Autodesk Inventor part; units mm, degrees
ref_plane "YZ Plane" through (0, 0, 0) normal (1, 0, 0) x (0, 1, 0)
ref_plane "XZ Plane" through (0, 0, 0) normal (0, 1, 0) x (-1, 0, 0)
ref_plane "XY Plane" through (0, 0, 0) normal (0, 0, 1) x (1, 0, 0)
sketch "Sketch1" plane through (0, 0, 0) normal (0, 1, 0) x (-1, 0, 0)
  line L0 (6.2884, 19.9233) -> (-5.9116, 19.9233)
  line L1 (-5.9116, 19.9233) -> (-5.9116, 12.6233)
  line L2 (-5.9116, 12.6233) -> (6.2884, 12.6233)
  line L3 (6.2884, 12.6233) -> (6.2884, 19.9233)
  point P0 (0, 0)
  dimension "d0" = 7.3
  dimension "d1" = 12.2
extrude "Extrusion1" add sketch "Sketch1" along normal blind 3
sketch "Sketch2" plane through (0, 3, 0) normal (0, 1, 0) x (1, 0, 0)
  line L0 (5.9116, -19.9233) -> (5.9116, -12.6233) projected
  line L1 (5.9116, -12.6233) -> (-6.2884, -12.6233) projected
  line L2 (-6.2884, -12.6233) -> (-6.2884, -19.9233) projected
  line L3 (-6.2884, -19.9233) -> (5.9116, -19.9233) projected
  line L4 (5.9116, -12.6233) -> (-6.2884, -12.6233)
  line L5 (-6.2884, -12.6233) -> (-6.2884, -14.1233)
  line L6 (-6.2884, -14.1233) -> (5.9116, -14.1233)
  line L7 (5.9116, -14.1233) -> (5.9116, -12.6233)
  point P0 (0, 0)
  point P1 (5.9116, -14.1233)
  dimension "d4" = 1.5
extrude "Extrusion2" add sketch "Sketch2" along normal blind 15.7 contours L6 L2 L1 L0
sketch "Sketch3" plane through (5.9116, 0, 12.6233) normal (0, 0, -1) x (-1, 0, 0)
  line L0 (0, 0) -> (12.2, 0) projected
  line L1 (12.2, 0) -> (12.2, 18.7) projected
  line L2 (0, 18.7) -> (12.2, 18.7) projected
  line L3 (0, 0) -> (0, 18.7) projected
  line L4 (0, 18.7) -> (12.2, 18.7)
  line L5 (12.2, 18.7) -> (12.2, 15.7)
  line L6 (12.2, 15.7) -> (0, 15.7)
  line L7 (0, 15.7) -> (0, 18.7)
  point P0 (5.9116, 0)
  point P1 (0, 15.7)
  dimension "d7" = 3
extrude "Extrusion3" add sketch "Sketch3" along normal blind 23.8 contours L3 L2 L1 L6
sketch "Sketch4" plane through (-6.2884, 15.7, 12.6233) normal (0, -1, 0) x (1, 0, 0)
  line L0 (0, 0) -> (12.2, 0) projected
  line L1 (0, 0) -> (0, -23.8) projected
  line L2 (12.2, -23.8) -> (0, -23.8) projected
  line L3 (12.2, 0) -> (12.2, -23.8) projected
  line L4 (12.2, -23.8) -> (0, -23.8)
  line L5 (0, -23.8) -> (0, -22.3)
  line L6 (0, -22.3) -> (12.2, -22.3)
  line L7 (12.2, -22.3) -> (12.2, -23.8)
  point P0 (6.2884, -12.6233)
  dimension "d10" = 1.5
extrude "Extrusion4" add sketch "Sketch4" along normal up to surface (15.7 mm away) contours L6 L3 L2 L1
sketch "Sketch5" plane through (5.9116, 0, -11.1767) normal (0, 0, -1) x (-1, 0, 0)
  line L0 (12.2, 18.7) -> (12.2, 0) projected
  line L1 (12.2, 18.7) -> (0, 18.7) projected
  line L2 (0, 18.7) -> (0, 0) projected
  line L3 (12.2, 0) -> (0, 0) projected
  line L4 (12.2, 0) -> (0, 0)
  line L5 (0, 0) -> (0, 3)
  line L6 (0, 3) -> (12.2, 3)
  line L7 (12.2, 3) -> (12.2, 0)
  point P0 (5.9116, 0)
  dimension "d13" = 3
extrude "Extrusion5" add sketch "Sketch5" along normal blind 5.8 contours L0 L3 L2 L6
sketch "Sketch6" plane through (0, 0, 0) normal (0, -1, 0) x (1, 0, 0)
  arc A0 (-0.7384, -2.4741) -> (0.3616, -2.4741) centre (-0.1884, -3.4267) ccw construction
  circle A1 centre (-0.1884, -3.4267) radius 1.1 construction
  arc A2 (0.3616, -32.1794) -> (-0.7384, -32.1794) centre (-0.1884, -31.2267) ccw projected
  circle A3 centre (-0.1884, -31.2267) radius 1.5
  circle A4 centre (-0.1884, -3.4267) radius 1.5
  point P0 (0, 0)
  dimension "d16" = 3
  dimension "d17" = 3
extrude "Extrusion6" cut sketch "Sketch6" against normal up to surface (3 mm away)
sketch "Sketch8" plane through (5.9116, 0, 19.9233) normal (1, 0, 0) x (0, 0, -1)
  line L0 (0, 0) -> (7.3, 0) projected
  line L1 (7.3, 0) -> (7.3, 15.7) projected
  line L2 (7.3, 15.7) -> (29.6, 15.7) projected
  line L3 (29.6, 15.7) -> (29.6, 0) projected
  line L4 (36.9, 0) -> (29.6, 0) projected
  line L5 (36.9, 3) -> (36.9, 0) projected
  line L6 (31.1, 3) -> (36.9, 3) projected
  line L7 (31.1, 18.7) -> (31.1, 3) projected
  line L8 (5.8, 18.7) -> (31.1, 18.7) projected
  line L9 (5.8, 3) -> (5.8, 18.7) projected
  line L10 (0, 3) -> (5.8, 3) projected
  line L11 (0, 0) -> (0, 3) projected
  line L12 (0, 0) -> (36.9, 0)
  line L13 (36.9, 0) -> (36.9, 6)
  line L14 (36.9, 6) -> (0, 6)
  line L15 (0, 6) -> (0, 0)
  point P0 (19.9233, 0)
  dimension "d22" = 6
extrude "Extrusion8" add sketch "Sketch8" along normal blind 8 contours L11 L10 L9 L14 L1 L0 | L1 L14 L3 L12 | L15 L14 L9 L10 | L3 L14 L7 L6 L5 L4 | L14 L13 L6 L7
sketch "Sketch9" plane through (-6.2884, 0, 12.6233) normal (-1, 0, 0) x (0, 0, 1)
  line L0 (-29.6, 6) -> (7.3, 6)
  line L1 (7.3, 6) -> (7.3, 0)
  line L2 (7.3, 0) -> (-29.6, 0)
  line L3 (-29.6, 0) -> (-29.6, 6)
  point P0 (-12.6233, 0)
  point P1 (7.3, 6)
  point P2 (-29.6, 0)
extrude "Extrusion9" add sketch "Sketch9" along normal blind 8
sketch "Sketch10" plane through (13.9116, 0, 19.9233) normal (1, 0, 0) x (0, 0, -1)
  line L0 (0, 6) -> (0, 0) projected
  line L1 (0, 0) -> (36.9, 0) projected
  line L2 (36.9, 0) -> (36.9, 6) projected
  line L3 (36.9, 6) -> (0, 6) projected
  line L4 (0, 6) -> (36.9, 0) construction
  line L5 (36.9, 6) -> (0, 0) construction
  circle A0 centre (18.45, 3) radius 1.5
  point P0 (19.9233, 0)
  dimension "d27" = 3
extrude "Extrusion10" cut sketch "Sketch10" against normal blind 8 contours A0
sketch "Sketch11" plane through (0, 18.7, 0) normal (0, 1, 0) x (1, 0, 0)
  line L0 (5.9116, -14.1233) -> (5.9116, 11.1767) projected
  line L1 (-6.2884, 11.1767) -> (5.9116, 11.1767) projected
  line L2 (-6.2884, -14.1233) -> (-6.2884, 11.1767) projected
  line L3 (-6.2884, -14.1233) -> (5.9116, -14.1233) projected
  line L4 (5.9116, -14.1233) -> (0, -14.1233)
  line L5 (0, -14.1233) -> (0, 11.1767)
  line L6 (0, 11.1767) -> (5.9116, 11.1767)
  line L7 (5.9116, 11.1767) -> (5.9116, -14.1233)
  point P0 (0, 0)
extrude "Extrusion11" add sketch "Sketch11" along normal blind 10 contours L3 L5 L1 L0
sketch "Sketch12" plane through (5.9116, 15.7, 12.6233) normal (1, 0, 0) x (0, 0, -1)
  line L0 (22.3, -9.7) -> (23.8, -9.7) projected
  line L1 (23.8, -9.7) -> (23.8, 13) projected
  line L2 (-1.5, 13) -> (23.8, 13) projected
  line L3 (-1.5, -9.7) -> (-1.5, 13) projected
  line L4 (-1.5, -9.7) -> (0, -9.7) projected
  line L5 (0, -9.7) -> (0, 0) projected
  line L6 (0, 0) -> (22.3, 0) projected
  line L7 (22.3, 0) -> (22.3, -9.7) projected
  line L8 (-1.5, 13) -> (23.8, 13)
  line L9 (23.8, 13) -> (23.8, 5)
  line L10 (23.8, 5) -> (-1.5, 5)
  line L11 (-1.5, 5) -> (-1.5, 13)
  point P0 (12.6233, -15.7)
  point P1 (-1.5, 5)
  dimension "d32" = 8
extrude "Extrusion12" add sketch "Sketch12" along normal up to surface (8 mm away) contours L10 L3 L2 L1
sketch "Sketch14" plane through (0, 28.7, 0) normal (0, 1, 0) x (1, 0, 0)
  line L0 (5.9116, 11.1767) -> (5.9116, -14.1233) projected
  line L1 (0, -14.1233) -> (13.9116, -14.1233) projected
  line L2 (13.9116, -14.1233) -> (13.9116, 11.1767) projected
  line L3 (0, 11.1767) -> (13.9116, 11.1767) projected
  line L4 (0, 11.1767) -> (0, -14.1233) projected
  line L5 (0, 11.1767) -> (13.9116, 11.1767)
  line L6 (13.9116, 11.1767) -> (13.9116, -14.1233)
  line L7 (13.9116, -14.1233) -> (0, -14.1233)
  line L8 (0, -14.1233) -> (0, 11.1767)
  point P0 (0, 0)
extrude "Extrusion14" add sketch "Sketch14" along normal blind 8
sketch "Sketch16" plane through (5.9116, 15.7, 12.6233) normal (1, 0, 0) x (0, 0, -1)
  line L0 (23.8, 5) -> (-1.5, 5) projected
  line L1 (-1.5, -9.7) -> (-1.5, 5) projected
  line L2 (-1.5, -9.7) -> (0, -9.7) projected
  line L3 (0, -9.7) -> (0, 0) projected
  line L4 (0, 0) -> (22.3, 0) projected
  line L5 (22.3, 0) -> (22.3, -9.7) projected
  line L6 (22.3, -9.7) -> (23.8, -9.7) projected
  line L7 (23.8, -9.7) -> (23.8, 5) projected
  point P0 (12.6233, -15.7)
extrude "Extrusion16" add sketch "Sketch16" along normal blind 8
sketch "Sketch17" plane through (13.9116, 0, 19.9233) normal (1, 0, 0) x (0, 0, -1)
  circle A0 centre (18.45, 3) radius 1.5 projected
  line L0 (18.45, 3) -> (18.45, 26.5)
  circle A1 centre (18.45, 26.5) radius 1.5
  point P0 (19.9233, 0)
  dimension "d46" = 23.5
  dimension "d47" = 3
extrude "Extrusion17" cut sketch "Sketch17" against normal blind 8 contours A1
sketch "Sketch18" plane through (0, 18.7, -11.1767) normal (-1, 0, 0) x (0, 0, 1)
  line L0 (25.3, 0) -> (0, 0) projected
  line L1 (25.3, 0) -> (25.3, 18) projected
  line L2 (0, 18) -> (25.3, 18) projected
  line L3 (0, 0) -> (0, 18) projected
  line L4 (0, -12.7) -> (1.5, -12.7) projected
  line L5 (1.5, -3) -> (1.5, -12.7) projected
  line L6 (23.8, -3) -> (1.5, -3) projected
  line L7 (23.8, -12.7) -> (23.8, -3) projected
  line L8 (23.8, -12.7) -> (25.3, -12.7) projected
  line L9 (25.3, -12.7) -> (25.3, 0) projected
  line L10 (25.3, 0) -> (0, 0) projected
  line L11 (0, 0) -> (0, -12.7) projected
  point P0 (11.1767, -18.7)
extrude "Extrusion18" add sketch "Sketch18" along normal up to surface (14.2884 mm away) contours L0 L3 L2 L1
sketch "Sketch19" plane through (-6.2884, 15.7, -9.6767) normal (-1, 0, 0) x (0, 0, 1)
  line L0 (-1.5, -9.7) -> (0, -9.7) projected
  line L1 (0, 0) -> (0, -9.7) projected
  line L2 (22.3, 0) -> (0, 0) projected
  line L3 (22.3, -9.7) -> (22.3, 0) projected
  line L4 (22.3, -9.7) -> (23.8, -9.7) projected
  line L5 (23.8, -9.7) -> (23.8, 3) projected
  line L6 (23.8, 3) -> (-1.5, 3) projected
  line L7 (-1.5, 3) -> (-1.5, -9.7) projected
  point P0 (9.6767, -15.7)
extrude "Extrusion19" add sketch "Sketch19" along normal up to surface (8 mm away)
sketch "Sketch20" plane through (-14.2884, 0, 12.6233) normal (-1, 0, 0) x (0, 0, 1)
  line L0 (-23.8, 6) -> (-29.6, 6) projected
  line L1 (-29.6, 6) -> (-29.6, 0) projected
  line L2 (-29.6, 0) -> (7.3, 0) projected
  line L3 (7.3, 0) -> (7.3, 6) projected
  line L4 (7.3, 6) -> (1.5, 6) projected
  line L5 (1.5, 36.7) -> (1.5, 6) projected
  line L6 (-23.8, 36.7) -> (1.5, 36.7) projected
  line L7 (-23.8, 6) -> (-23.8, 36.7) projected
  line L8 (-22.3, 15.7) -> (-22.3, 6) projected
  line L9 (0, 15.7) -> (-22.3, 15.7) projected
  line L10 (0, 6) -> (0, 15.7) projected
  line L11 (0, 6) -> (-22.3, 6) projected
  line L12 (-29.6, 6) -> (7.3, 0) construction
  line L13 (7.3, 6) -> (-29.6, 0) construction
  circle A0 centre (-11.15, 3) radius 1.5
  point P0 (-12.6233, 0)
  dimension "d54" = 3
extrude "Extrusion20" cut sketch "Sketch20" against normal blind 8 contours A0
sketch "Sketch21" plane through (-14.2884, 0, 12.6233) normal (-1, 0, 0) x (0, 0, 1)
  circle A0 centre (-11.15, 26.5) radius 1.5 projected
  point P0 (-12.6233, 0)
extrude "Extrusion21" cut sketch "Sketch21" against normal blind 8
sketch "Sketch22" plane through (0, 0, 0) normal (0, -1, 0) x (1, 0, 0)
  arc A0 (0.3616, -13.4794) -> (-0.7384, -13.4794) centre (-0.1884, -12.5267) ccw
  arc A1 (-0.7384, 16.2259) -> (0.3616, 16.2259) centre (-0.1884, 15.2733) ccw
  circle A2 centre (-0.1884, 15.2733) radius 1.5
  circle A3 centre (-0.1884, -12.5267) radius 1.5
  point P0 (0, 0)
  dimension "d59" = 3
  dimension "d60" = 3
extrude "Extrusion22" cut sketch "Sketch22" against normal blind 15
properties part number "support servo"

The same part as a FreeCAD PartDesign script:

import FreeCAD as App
import Part
import Sketcher
Q = App.Units.Quantity

doc = App.newDocument("Part")
body = doc.addObject("PartDesign::Body", "Body")

# Sketch on XZ plane
sketch1 = doc.addObject("Sketcher::SketchObject", "Sketch")
body.addObject(sketch1)
sketch1.AttachmentSupport = (doc.XZ_Plane, [""])
sketch1.MapMode = "FlatFace"
sketch1.addGeometry(Part.LineSegment(App.Vector(-6, 13, 0), App.Vector(-6, 20, 0)), False)
sketch1.addGeometry(Part.LineSegment(App.Vector(-6, 20, 0), App.Vector(6, 20, 0)), False)
sketch1.addGeometry(Part.LineSegment(App.Vector(6, 20, 0), App.Vector(6, 13, 0)), False)
sketch1.addGeometry(Part.LineSegment(App.Vector(6, 13, 0), App.Vector(-6, 13, 0)), False)
sketch1.addConstraint(Sketcher.Constraint("Coincident", 0, 2, 1, 1))
sketch1.addConstraint(Sketcher.Constraint("Coincident", 1, 2, 2, 1))
sketch1.addConstraint(Sketcher.Constraint("Coincident", 2, 2, 3, 1))
sketch1.addConstraint(Sketcher.Constraint("Coincident", 3, 2, 0, 1))
sketch1.addConstraint(Sketcher.Constraint("Vertical", 0))
sketch1.addConstraint(Sketcher.Constraint("Horizontal", 1))
sketch1.addConstraint(Sketcher.Constraint("Vertical", 2))
sketch1.addConstraint(Sketcher.Constraint("Horizontal", 3))
sketch1.addConstraint(Sketcher.Constraint("DistanceX", 1, 1, 1, 2, Q("12.2 mm")))
sketch1.addConstraint(Sketcher.Constraint("DistanceY", 0, 1, 0, 2, Q("7.3 mm")))
sketch1.addConstraint(Sketcher.Constraint("DistanceX", 0, 2, -1, 1, Q("6.2884 mm")))
sketch1.addConstraint(Sketcher.Constraint("DistanceY", -1, 1, 0, 2, Q("19.9233 mm")))
pad1 = doc.addObject("PartDesign::Pad", "Pad")
body.addObject(pad1)
pad1.Profile = sketch1
pad1.Length = 3
pad1.Reversed = True

# Sketch on XZ plane
sketch2 = doc.addObject("Sketcher::SketchObject", "Sketch001")
body.addObject(sketch2)
sketch2.AttachmentSupport = (doc.XZ_Plane, [""])
sketch2.MapMode = "FlatFace"
sketch2.AttachmentOffset = App.Placement(App.Vector(0, 0, -3), App.Rotation())
sketch2.addGeometry(Part.LineSegment(App.Vector(-6.3, 14.1, 0), App.Vector(5.9, 14.1, 0)), False)
sketch2.addGeometry(Part.LineSegment(App.Vector(5.9, 14.1, 0), App.Vector(5.9, 12.6, 0)), False)
sketch2.addGeometry(Part.LineSegment(App.Vector(5.9, 12.6, 0), App.Vector(-6.3, 12.6, 0)), False)
sketch2.addGeometry(Part.LineSegment(App.Vector(-6.3, 12.6, 0), App.Vector(-6.3, 14.1, 0)), False)
sketch2.addConstraint(Sketcher.Constraint("Coincident", 0, 2, 1, 1))
sketch2.addConstraint(Sketcher.Constraint("Coincident", 1, 2, 2, 1))
sketch2.addConstraint(Sketcher.Constraint("Coincident", 2, 2, 3, 1))
sketch2.addConstraint(Sketcher.Constraint("Coincident", 3, 2, 0, 1))
sketch2.addConstraint(Sketcher.Constraint("Horizontal", 0))
sketch2.addConstraint(Sketcher.Constraint("Vertical", 1))
sketch2.addConstraint(Sketcher.Constraint("Horizontal", 2))
sketch2.addConstraint(Sketcher.Constraint("Vertical", 3))
sketch2.addConstraint(Sketcher.Constraint("DistanceY", 1, 2, 1, 1, Q("1.5 mm")))
sketch2.addConstraint(Sketcher.Constraint("DistanceX", 0, 1, 0, 2, Q("12.2 mm")))
sketch2.addConstraint(Sketcher.Constraint("DistanceX", -1, 1, 0, 2, Q("5.9116 mm")))
sketch2.addConstraint(Sketcher.Constraint("DistanceY", -1, 1, 0, 2, Q("14.1233 mm")))
pad2 = doc.addObject("PartDesign::Pad", "Pad001")
body.addObject(pad2)
pad2.Profile = sketch2
pad2.Length = 15.7
pad2.Reversed = True

# Sketch on XY plane
sketch3 = doc.addObject("Sketcher::SketchObject", "Sketch002")
body.addObject(sketch3)
sketch3.AttachmentSupport = (doc.XY_Plane, [""])
sketch3.MapMode = "FlatFace"
sketch3.AttachmentOffset = App.Placement(App.Vector(0, 0, 12.6233), App.Rotation())
sketch3.addGeometry(Part.LineSegment(App.Vector(5.9, 18.7, 0), App.Vector(5.9, 15.7, 0)), False)
sketch3.addGeometry(Part.LineSegment(App.Vector(5.9, 15.7, 0), App.Vector(-6.3, 15.7, 0)), False)
sketch3.addGeometry(Part.LineSegment(App.Vector(-6.3, 15.7, 0), App.Vector(-6.3, 18.7, 0)), False)
sketch3.addGeometry(Part.LineSegment(App.Vector(-6.3, 18.7, 0), App.Vector(5.9, 18.7, 0)), False)
sketch3.addConstraint(Sketcher.Constraint("Coincident", 0, 2, 1, 1))
sketch3.addConstraint(Sketcher.Constraint("Coincident", 1, 2, 2, 1))
sketch3.addConstraint(Sketcher.Constraint("Coincident", 2, 2, 3, 1))
sketch3.addConstraint(Sketcher.Constraint("Coincident", 3, 2, 0, 1))
sketch3.addConstraint(Sketcher.Constraint("Vertical", 0))
sketch3.addConstraint(Sketcher.Constraint("Horizontal", 1))
sketch3.addConstraint(Sketcher.Constraint("Vertical", 2))
sketch3.addConstraint(Sketcher.Constraint("Horizontal", 3))
sketch3.addConstraint(Sketcher.Constraint("DistanceY", 0, 2, 0, 1, Q("3 mm")))
sketch3.addConstraint(Sketcher.Constraint("DistanceX", 1, 2, 1, 1, Q("12.2 mm")))
sketch3.addConstraint(Sketcher.Constraint("DistanceY", -1, 1, 0, 2, Q("15.7 mm")))
sketch3.addConstraint(Sketcher.Constraint("DistanceX", -1, 1, 0, 2, Q("5.9116 mm")))
pad3 = doc.addObject("PartDesign::Pad", "Pad002")
body.addObject(pad3)
pad3.Profile = sketch3
pad3.Length = 23.8
pad3.Reversed = True

# Sketch on XZ plane
sketch4 = doc.addObject("Sketcher::SketchObject", "Sketch003")
body.addObject(sketch4)
sketch4.AttachmentSupport = (doc.XZ_Plane, [""])
sketch4.MapMode = "FlatFace"
sketch4.AttachmentOffset = App.Placement(App.Vector(0, 0, -15.7), App.Rotation())
sketch4.addGeometry(Part.LineSegment(App.Vector(5.9, -9.7, 0), App.Vector(-6.3, -9.7, 0)), False)
sketch4.addGeometry(Part.LineSegment(App.Vector(-6.3, -9.7, 0), App.Vector(-6.3, -11.2, 0)), False)
sketch4.addGeometry(Part.LineSegment(App.Vector(-6.3, -11.2, 0), App.Vector(5.9, -11.2, 0)), False)
sketch4.addGeometry(Part.LineSegment(App.Vector(5.9, -11.2, 0), App.Vector(5.9, -9.7, 0)), False)
sketch4.addConstraint(Sketcher.Constraint("Coincident", 0, 2, 1, 1))
sketch4.addConstraint(Sketcher.Constraint("Coincident", 1, 2, 2, 1))
sketch4.addConstraint(Sketcher.Constraint("Coincident", 2, 2, 3, 1))
sketch4.addConstraint(Sketcher.Constraint("Coincident", 3, 2, 0, 1))
sketch4.addConstraint(Sketcher.Constraint("Horizontal", 0))
sketch4.addConstraint(Sketcher.Constraint("Vertical", 1))
sketch4.addConstraint(Sketcher.Constraint("Horizontal", 2))
sketch4.addConstraint(Sketcher.Constraint("Vertical", 3))
sketch4.addConstraint(Sketcher.Constraint("DistanceY", 1, 2, 1, 1, Q("1.5 mm")))
sketch4.addConstraint(Sketcher.Constraint("DistanceX", 0, 2, 0, 1, Q("12.2 mm")))
sketch4.addConstraint(Sketcher.Constraint("DistanceX", 0, 2, -1, 1, Q("6.2884 mm")))
sketch4.addConstraint(Sketcher.Constraint("DistanceY", 0, 2, -1, 1, Q("9.6767 mm")))
pad4 = doc.addObject("PartDesign::Pad", "Pad003")
body.addObject(pad4)
pad4.Profile = sketch4
pad4.Length = 15.7

# Sketch on XY plane
sketch5 = doc.addObject("Sketcher::SketchObject", "Sketch004")
body.addObject(sketch5)
sketch5.AttachmentSupport = (doc.XY_Plane, [""])
sketch5.MapMode = "FlatFace"
sketch5.AttachmentOffset = App.Placement(App.Vector(0, 0, -11.1767), App.Rotation())
sketch5.addGeometry(Part.LineSegment(App.Vector(-6.3, 0, 0), App.Vector(-6.3, 3, 0)), False)
sketch5.addGeometry(Part.LineSegment(App.Vector(-6.3, 3, 0), App.Vector(5.9, 3, 0)), False)
sketch5.addGeometry(Part.LineSegment(App.Vector(5.9, 3, 0), App.Vector(5.9, 0, 0)), False)
sketch5.addGeometry(Part.LineSegment(App.Vector(5.9, 0, 0), App.Vector(-6.3, 0, 0)), False)
sketch5.addConstraint(Sketcher.Constraint("Coincident", 0, 2, 1, 1))
sketch5.addConstraint(Sketcher.Constraint("Coincident", 1, 2, 2, 1))
sketch5.addConstraint(Sketcher.Constraint("Coincident", 2, 2, 3, 1))
sketch5.addConstraint(Sketcher.Constraint("Coincident", 3, 2, 0, 1))
sketch5.addConstraint(Sketcher.Constraint("Vertical", 0))
sketch5.addConstraint(Sketcher.Constraint("Horizontal", 1))
sketch5.addConstraint(Sketcher.Constraint("Vertical", 2))
sketch5.addConstraint(Sketcher.Constraint("Horizontal", 3))
sketch5.addConstraint(Sketcher.Constraint("PointOnObject", 2, 2, -1))
sketch5.addConstraint(Sketcher.Constraint("DistanceY", 0, 1, 0, 2, Q("3 mm")))
sketch5.addConstraint(Sketcher.Constraint("DistanceX", 1, 1, 1, 2, Q("12.2 mm")))
sketch5.addConstraint(Sketcher.Constraint("DistanceX", 0, 2, -1, 1, Q("6.2884 mm")))
pad5 = doc.addObject("PartDesign::Pad", "Pad004")
body.addObject(pad5)
pad5.Profile = sketch5
pad5.Length = 5.8
pad5.Reversed = True

# Sketch on XZ plane
sketch6 = doc.addObject("Sketcher::SketchObject", "Sketch005")
body.addObject(sketch6)
sketch6.AttachmentSupport = (doc.XZ_Plane, [""])
sketch6.MapMode = "FlatFace"
sketch6.addGeometry(Part.Circle(App.Vector(-0.2, -31.2, 0), App.Vector(0, 0, 1), 1.5), False)
sketch6.addGeometry(Part.Circle(App.Vector(-0.2, -3.4, 0), App.Vector(0, 0, 1), 1.5), False)
sketch6.addConstraint(Sketcher.Constraint("Equal", 0, 1))
sketch6.addConstraint(Sketcher.Constraint("Vertical", 0, 3, 1, 3))
sketch6.addConstraint(Sketcher.Constraint("Diameter", 0, Q("3 mm")))
sketch6.addConstraint(Sketcher.Constraint("DistanceY", 0, 3, 1, 3, Q("27.8 mm")))
sketch6.addConstraint(Sketcher.Constraint("DistanceX", 0, 3, -1, 1, Q("0.1884 mm")))
sketch6.addConstraint(Sketcher.Constraint("DistanceY", 0, 3, -1, 1, Q("31.2267 mm")))
pocket1 = doc.addObject("PartDesign::Pocket", "Pocket")
body.addObject(pocket1)
pocket1.Profile = sketch6
pocket1.Length = 3

# Sketch on YZ plane
sketch7 = doc.addObject("Sketcher::SketchObject", "Sketch006")
body.addObject(sketch7)
sketch7.AttachmentSupport = (doc.YZ_Plane, [""])
sketch7.MapMode = "FlatFace"
sketch7.AttachmentOffset = App.Placement(App.Vector(0, 0, 5.9116), App.Rotation())
sketch7.addGeometry(Part.LineSegment(App.Vector(0, 20, 0), App.Vector(0, -17, 0)), False)
sketch7.addGeometry(Part.LineSegment(App.Vector(0, -17, 0), App.Vector(6, -17, 0)), False)
sketch7.addGeometry(Part.LineSegment(App.Vector(6, -17, 0), App.Vector(6, 20, 0)), False)
sketch7.addGeometry(Part.LineSegment(App.Vector(6, 20, 0), App.Vector(0, 20, 0)), False)
sketch7.addConstraint(Sketcher.Constraint("Coincident", 0, 2, 1, 1))
sketch7.addConstraint(Sketcher.Constraint("Coincident", 1, 2, 2, 1))
sketch7.addConstraint(Sketcher.Constraint("Coincident", 2, 2, 3, 1))
sketch7.addConstraint(Sketcher.Constraint("Coincident", 3, 2, 0, 1))
sketch7.addConstraint(Sketcher.Constraint("Vertical", 0))
sketch7.addConstraint(Sketcher.Constraint("Horizontal", 1))
sketch7.addConstraint(Sketcher.Constraint("Vertical", 2))
sketch7.addConstraint(Sketcher.Constraint("Horizontal", 3))
sketch7.addConstraint(Sketcher.Constraint("PointOnObject", 0, 2, -2))
sketch7.addConstraint(Sketcher.Constraint("DistanceX", 1, 1, 1, 2, Q("6 mm")))
sketch7.addConstraint(Sketcher.Constraint("DistanceY", 0, 2, 0, 1, Q("36.9 mm")))
sketch7.addConstraint(Sketcher.Constraint("DistanceY", 0, 2, -1, 1, Q("16.9767 mm")))
pad6 = doc.addObject("PartDesign::Pad", "Pad005")
body.addObject(pad6)
pad6.Profile = sketch7
pad6.Length = 8

# Sketch on YZ plane
sketch8 = doc.addObject("Sketcher::SketchObject", "Sketch007")
body.addObject(sketch8)
sketch8.AttachmentSupport = (doc.YZ_Plane, [""])
sketch8.MapMode = "FlatFace"
sketch8.AttachmentOffset = App.Placement(App.Vector(0, 0, -6.2884), App.Rotation())
sketch8.addGeometry(Part.LineSegment(App.Vector(6, 20, 0), App.Vector(6, -17, 0)), False)
sketch8.addGeometry(Part.LineSegment(App.Vector(6, -17, 0), App.Vector(0, -17, 0)), False)
sketch8.addGeometry(Part.LineSegment(App.Vector(0, -17, 0), App.Vector(0, 20, 0)), False)
sketch8.addGeometry(Part.LineSegment(App.Vector(0, 20, 0), App.Vector(6, 20, 0)), False)
sketch8.addConstraint(Sketcher.Constraint("Coincident", 0, 2, 1, 1))
sketch8.addConstraint(Sketcher.Constraint("Coincident", 1, 2, 2, 1))
sketch8.addConstraint(Sketcher.Constraint("Coincident", 2, 2, 3, 1))
sketch8.addConstraint(Sketcher.Constraint("Coincident", 3, 2, 0, 1))
sketch8.addConstraint(Sketcher.Constraint("Vertical", 0))
sketch8.addConstraint(Sketcher.Constraint("Horizontal", 1))
sketch8.addConstraint(Sketcher.Constraint("Vertical", 2))
sketch8.addConstraint(Sketcher.Constraint("Horizontal", 3))
sketch8.addConstraint(Sketcher.Constraint("PointOnObject", 1, 2, -2))
sketch8.addConstraint(Sketcher.Constraint("DistanceX", 1, 2, 1, 1, Q("6 mm")))
sketch8.addConstraint(Sketcher.Constraint("DistanceY", 0, 2, 0, 1, Q("36.9 mm")))
sketch8.addConstraint(Sketcher.Constraint("DistanceY", 0, 2, -1, 1, Q("16.9767 mm")))
pad7 = doc.addObject("PartDesign::Pad", "Pad006")
body.addObject(pad7)
pad7.Profile = sketch8
pad7.Length = 8
pad7.Reversed = True

# Sketch on YZ plane
sketch9 = doc.addObject("Sketcher::SketchObject", "Sketch008")
body.addObject(sketch9)
sketch9.AttachmentSupport = (doc.YZ_Plane, [""])
sketch9.MapMode = "FlatFace"
sketch9.AttachmentOffset = App.Placement(App.Vector(0, 0, 13.9116), App.Rotation())
sketch9.addGeometry(Part.Circle(App.Vector(3, 1.5, 0), App.Vector(0, 0, 1), 1.5), False)
sketch9.addConstraint(Sketcher.Constraint("Diameter", 0, Q("3 mm")))
sketch9.addConstraint(Sketcher.Constraint("DistanceX", -1, 1, 0, 3, Q("3 mm")))
sketch9.addConstraint(Sketcher.Constraint("DistanceY", -1, 1, 0, 3, Q("1.4733 mm")))
pocket2 = doc.addObject("PartDesign::Pocket", "Pocket001")
body.addObject(pocket2)
pocket2.Profile = sketch9
pocket2.Length = 8

# Sketch on XZ plane
sketch10 = doc.addObject("Sketcher::SketchObject", "Sketch009")
body.addObject(sketch10)
sketch10.AttachmentSupport = (doc.XZ_Plane, [""])
sketch10.MapMode = "FlatFace"
sketch10.AttachmentOffset = App.Placement(App.Vector(0, 0, -18.7), App.Rotation())
sketch10.addGeometry(Part.LineSegment(App.Vector(0, 14, 0), App.Vector(6, 14, 0)), False)
sketch10.addGeometry(Part.LineSegment(App.Vector(6, 14, 0), App.Vector(6, -11, 0)), False)
sketch10.addGeometry(Part.LineSegment(App.Vector(6, -11, 0), App.Vector(0, -11, 0)), False)
sketch10.addGeometry(Part.LineSegment(App.Vector(0, -11, 0), App.Vector(0, 14, 0)), False)
sketch10.addConstraint(Sketcher.Constraint("Coincident", 0, 2, 1, 1))
sketch10.addConstraint(Sketcher.Constraint("Coincident", 1, 2, 2, 1))
sketch10.addConstraint(Sketcher.Constraint("Coincident", 2, 2, 3, 1))
sketch10.addConstraint(Sketcher.Constraint("Coincident", 3, 2, 0, 1))
sketch10.addConstraint(Sketcher.Constraint("Horizontal", 0))
sketch10.addConstraint(Sketcher.Constraint("Vertical", 1))
sketch10.addConstraint(Sketcher.Constraint("Horizontal", 2))
sketch10.addConstraint(Sketcher.Constraint("Vertical", 3))
sketch10.addConstraint(Sketcher.Constraint("PointOnObject", 2, 2, -2))
sketch10.addConstraint(Sketcher.Constraint("DistanceY", 1, 2, 1, 1, Q("25.3 mm")))
sketch10.addConstraint(Sketcher.Constraint("DistanceX", 0, 1, 0, 2, Q("5.9116 mm")))
sketch10.addConstraint(Sketcher.Constraint("DistanceY", -1, 1, 0, 2, Q("14.1233 mm")))
pad8 = doc.addObject("PartDesign::Pad", "Pad007")
body.addObject(pad8)
pad8.Profile = sketch10
pad8.Length = 10
pad8.Reversed = True

# Sketch on YZ plane
sketch11 = doc.addObject("Sketcher::SketchObject", "Sketch010")
body.addObject(sketch11)
sketch11.AttachmentSupport = (doc.YZ_Plane, [""])
sketch11.MapMode = "FlatFace"
sketch11.AttachmentOffset = App.Placement(App.Vector(0, 0, 5.9116), App.Rotation())
sketch11.addGeometry(Part.LineSegment(App.Vector(21, 14, 0), App.Vector(21, -11, 0)), False)
sketch11.addGeometry(Part.LineSegment(App.Vector(21, -11, 0), App.Vector(29, -11, 0)), False)
sketch11.addGeometry(Part.LineSegment(App.Vector(29, -11, 0), App.Vector(29, 14, 0)), False)
sketch11.addGeometry(Part.LineSegment(App.Vector(29, 14, 0), App.Vector(21, 14, 0)), False)
sketch11.addConstraint(Sketcher.Constraint("Coincident", 0, 2, 1, 1))
sketch11.addConstraint(Sketcher.Constraint("Coincident", 1, 2, 2, 1))
sketch11.addConstraint(Sketcher.Constraint("Coincident", 2, 2, 3, 1))
sketch11.addConstraint(Sketcher.Constraint("Coincident", 3, 2, 0, 1))
sketch11.addConstraint(Sketcher.Constraint("Vertical", 0))
sketch11.addConstraint(Sketcher.Constraint("Horizontal", 1))
sketch11.addConstraint(Sketcher.Constraint("Vertical", 2))
sketch11.addConstraint(Sketcher.Constraint("Horizontal", 3))
sketch11.addConstraint(Sketcher.Constraint("DistanceX", 1, 1, 1, 2, Q("8 mm")))
sketch11.addConstraint(Sketcher.Constraint("DistanceY", 0, 2, 0, 1, Q("25.3 mm")))
sketch11.addConstraint(Sketcher.Constraint("DistanceX", -1, 1, 0, 2, Q("20.7 mm")))
sketch11.addConstraint(Sketcher.Constraint("DistanceY", 0, 2, -1, 1, Q("11.1767 mm")))
pad9 = doc.addObject("PartDesign::Pad", "Pad008")
body.addObject(pad9)
pad9.Profile = sketch11
pad9.Length = 8

# Sketch on XZ plane
sketch12 = doc.addObject("Sketcher::SketchObject", "Sketch011")
body.addObject(sketch12)
sketch12.AttachmentSupport = (doc.XZ_Plane, [""])
sketch12.MapMode = "FlatFace"
sketch12.AttachmentOffset = App.Placement(App.Vector(0, 0, -28.7), App.Rotation())
sketch12.addGeometry(Part.LineSegment(App.Vector(14, -11, 0), App.Vector(0, -11, 0)), False)
sketch12.addGeometry(Part.LineSegment(App.Vector(0, -11, 0), App.Vector(0, 14, 0)), False)
sketch12.addGeometry(Part.LineSegment(App.Vector(0, 14, 0), App.Vector(14, 14, 0)), False)
sketch12.addGeometry(Part.LineSegment(App.Vector(14, 14, 0), App.Vector(14, -11, 0)), False)
sketch12.addConstraint(Sketcher.Constraint("Coincident", 0, 2, 1, 1))
sketch12.addConstraint(Sketcher.Constraint("Coincident", 1, 2, 2, 1))
sketch12.addConstraint(Sketcher.Constraint("Coincident", 2, 2, 3, 1))
sketch12.addConstraint(Sketcher.Constraint("Coincident", 3, 2, 0, 1))
sketch12.addConstraint(Sketcher.Constraint("Horizontal", 0))
sketch12.addConstraint(Sketcher.Constraint("Vertical", 1))
sketch12.addConstraint(Sketcher.Constraint("Horizontal", 2))
sketch12.addConstraint(Sketcher.Constraint("Vertical", 3))
sketch12.addConstraint(Sketcher.Constraint("PointOnObject", 0, 2, -2))
sketch12.addConstraint(Sketcher.Constraint("DistanceY", 1, 1, 1, 2, Q("25.3 mm")))
sketch12.addConstraint(Sketcher.Constraint("DistanceX", 0, 2, 0, 1, Q("13.9116 mm")))
sketch12.addConstraint(Sketcher.Constraint("DistanceY", 0, 2, -1, 1, Q("11.1767 mm")))
pad10 = doc.addObject("PartDesign::Pad", "Pad009")
body.addObject(pad10)
pad10.Profile = sketch12
pad10.Length = 8
pad10.Reversed = True

# Sketch on YZ plane
sketch13 = doc.addObject("Sketcher::SketchObject", "Sketch012")
body.addObject(sketch13)
sketch13.AttachmentSupport = (doc.YZ_Plane, [""])
sketch13.MapMode = "FlatFace"
sketch13.AttachmentOffset = App.Placement(App.Vector(0, 0, 5.9116), App.Rotation())
sketch13.addGeometry(Part.LineSegment(App.Vector(6, -11.2, 0), App.Vector(20.7, -11.2, 0)), False)
sketch13.addGeometry(Part.LineSegment(App.Vector(20.7, -11.2, 0), App.Vector(20.7, 14.1, 0)), False)
sketch13.addGeometry(Part.LineSegment(App.Vector(20.7, 14.1, 0), App.Vector(6, 14.1, 0)), False)
sketch13.addGeometry(Part.LineSegment(App.Vector(6, 14.1, 0), App.Vector(6, 12.6, 0)), False)
sketch13.addGeometry(Part.LineSegment(App.Vector(6, 12.6, 0), App.Vector(15.7, 12.6, 0)), False)
sketch13.addGeometry(Part.LineSegment(App.Vector(15.7, 12.6, 0), App.Vector(15.7, -9.7, 0)), False)
sketch13.addGeometry(Part.LineSegment(App.Vector(15.7, -9.7, 0), App.Vector(6, -9.7, 0)), False)
sketch13.addGeometry(Part.LineSegment(App.Vector(6, -9.7, 0), App.Vector(6, -11.2, 0)), False)
sketch13.addConstraint(Sketcher.Constraint("Coincident", 0, 2, 1, 1))
sketch13.addConstraint(Sketcher.Constraint("Coincident", 1, 2, 2, 1))
sketch13.addConstraint(Sketcher.Constraint("Coincident", 2, 2, 3, 1))
sketch13.addConstraint(Sketcher.Constraint("Coincident", 3, 2, 4, 1))
sketch13.addConstraint(Sketcher.Constraint("Coincident", 4, 2, 5, 1))
sketch13.addConstraint(Sketcher.Constraint("Coincident", 5, 2, 6, 1))
sketch13.addConstraint(Sketcher.Constraint("Coincident", 6, 2, 7, 1))
sketch13.addConstraint(Sketcher.Constraint("Coincident", 7, 2, 0, 1))
sketch13.addConstraint(Sketcher.Constraint("Horizontal", 0))
sketch13.addConstraint(Sketcher.Constraint("Vertical", 1))
sketch13.addConstraint(Sketcher.Constraint("Horizontal", 2))
sketch13.addConstraint(Sketcher.Constraint("Vertical", 3))
sketch13.addConstraint(Sketcher.Constraint("Horizontal", 4))
sketch13.addConstraint(Sketcher.Constraint("Vertical", 5))
sketch13.addConstraint(Sketcher.Constraint("Horizontal", 6))
sketch13.addConstraint(Sketcher.Constraint("Vertical", 7))
sketch13.addConstraint(Sketcher.Constraint("Vertical", 3, 2, 6, 2))
sketch13.addConstraint(Sketcher.Constraint("Equal", 3, 7))
sketch13.addConstraint(Sketcher.Constraint("DistanceX", 0, 1, 0, 2, Q("14.7 mm")))
sketch13.addConstraint(Sketcher.Constraint("DistanceX", 4, 1, 4, 2, Q("9.7 mm")))
sketch13.addConstraint(Sketcher.Constraint("DistanceY", 1, 1, 1, 2, Q("25.3 mm")))
sketch13.addConstraint(Sketcher.Constraint("DistanceY", 3, 2, 3, 1, Q("1.5 mm")))
sketch13.addConstraint(Sketcher.Constraint("DistanceX", -1, 1, 2, 2, Q("6 mm")))
sketch13.addConstraint(Sketcher.Constraint("DistanceY", 0, 2, -1, 1, Q("11.1767 mm")))
pad11 = doc.addObject("PartDesign::Pad", "Pad010")
body.addObject(pad11)
pad11.Profile = sketch13
pad11.Length = 8

# Sketch on YZ plane
sketch14 = doc.addObject("Sketcher::SketchObject", "Sketch013")
body.addObject(sketch14)
sketch14.AttachmentSupport = (doc.YZ_Plane, [""])
sketch14.MapMode = "FlatFace"
sketch14.AttachmentOffset = App.Placement(App.Vector(0, 0, 13.9116), App.Rotation())
sketch14.addGeometry(Part.Circle(App.Vector(26.5, 1.5, 0), App.Vector(0, 0, 1), 1.5), False)
sketch14.addConstraint(Sketcher.Constraint("Diameter", 0, Q("3 mm")))
sketch14.addConstraint(Sketcher.Constraint("DistanceX", -1, 1, 0, 3, Q("26.5 mm")))
sketch14.addConstraint(Sketcher.Constraint("DistanceY", -1, 1, 0, 3, Q("1.4733 mm")))
pocket3 = doc.addObject("PartDesign::Pocket", "Pocket002")
body.addObject(pocket3)
pocket3.Profile = sketch14
pocket3.Length = 8

# Sketch on YZ plane
sketch15 = doc.addObject("Sketcher::SketchObject", "Sketch014")
body.addObject(sketch15)
sketch15.AttachmentSupport = (doc.YZ_Plane, [""])
sketch15.MapMode = "FlatFace"
sketch15.addGeometry(Part.LineSegment(App.Vector(19, -11, 0), App.Vector(19, 14, 0)), False)
sketch15.addGeometry(Part.LineSegment(App.Vector(19, 14, 0), App.Vector(37, 14, 0)), False)
sketch15.addGeometry(Part.LineSegment(App.Vector(37, 14, 0), App.Vector(37, -11, 0)), False)
sketch15.addGeometry(Part.LineSegment(App.Vector(37, -11, 0), App.Vector(19, -11, 0)), False)
sketch15.addConstraint(Sketcher.Constraint("Coincident", 0, 2, 1, 1))
sketch15.addConstraint(Sketcher.Constraint("Coincident", 1, 2, 2, 1))
sketch15.addConstraint(Sketcher.Constraint("Coincident", 2, 2, 3, 1))
sketch15.addConstraint(Sketcher.Constraint("Coincident", 3, 2, 0, 1))
sketch15.addConstraint(Sketcher.Constraint("Vertical", 0))
sketch15.addConstraint(Sketcher.Constraint("Horizontal", 1))
sketch15.addConstraint(Sketcher.Constraint("Vertical", 2))
sketch15.addConstraint(Sketcher.Constraint("Horizontal", 3))
sketch15.addConstraint(Sketcher.Constraint("DistanceX", 1, 1, 1, 2, Q("18 mm")))
sketch15.addConstraint(Sketcher.Constraint("DistanceY", 0, 1, 0, 2, Q("25.3 mm")))
sketch15.addConstraint(Sketcher.Constraint("DistanceX", -1, 1, 0, 2, Q("18.7 mm")))
sketch15.addConstraint(Sketcher.Constraint("DistanceY", -1, 1, 0, 2, Q("14.1233 mm")))
pad12 = doc.addObject("PartDesign::Pad", "Pad011")
body.addObject(pad12)
pad12.Profile = sketch15
pad12.Length = 14.2884
pad12.Reversed = True

# Sketch on YZ plane
sketch16 = doc.addObject("Sketcher::SketchObject", "Sketch015")
body.addObject(sketch16)
sketch16.AttachmentSupport = (doc.YZ_Plane, [""])
sketch16.MapMode = "FlatFace"
sketch16.AttachmentOffset = App.Placement(App.Vector(0, 0, -6.2884), App.Rotation())
sketch16.addGeometry(Part.LineSegment(App.Vector(18.7, -11.2, 0), App.Vector(6, -11.2, 0)), False)
sketch16.addGeometry(Part.LineSegment(App.Vector(6, -11.2, 0), App.Vector(6, -9.7, 0)), False)
sketch16.addGeometry(Part.LineSegment(App.Vector(6, -9.7, 0), App.Vector(15.7, -9.7, 0)), False)
sketch16.addGeometry(Part.LineSegment(App.Vector(15.7, -9.7, 0), App.Vector(15.7, 12.6, 0)), False)
sketch16.addGeometry(Part.LineSegment(App.Vector(15.7, 12.6, 0), App.Vector(6, 12.6, 0)), False)
sketch16.addGeometry(Part.LineSegment(App.Vector(6, 12.6, 0), App.Vector(6, 14.1, 0)), False)
sketch16.addGeometry(Part.LineSegment(App.Vector(6, 14.1, 0), App.Vector(18.7, 14.1, 0)), False)
sketch16.addGeometry(Part.LineSegment(App.Vector(18.7, 14.1, 0), App.Vector(18.7, -11.2, 0)), False)
sketch16.addConstraint(Sketcher.Constraint("Coincident", 0, 2, 1, 1))
sketch16.addConstraint(Sketcher.Constraint("Coincident", 1, 2, 2, 1))
sketch16.addConstraint(Sketcher.Constraint("Coincident", 2, 2, 3, 1))
sketch16.addConstraint(Sketcher.Constraint("Coincident", 3, 2, 4, 1))
sketch16.addConstraint(Sketcher.Constraint("Coincident", 4, 2, 5, 1))
sketch16.addConstraint(Sketcher.Constraint("Coincident", 5, 2, 6, 1))
sketch16.addConstraint(Sketcher.Constraint("Coincident", 6, 2, 7, 1))
sketch16.addConstraint(Sketcher.Constraint("Coincident", 7, 2, 0, 1))
sketch16.addConstraint(Sketcher.Constraint("Horizontal", 0))
sketch16.addConstraint(Sketcher.Constraint("Vertical", 1))
sketch16.addConstraint(Sketcher.Constraint("Horizontal", 2))
sketch16.addConstraint(Sketcher.Constraint("Vertical", 3))
sketch16.addConstraint(Sketcher.Constraint("Horizontal", 4))
sketch16.addConstraint(Sketcher.Constraint("Vertical", 5))
sketch16.addConstraint(Sketcher.Constraint("Horizontal", 6))
sketch16.addConstraint(Sketcher.Constraint("Vertical", 7))
sketch16.addConstraint(Sketcher.Constraint("Vertical", 1, 2, 4, 2))
sketch16.addConstraint(Sketcher.Constraint("Equal", 1, 5))
sketch16.addConstraint(Sketcher.Constraint("DistanceX", 0, 2, 0, 1, Q("12.7 mm")))
sketch16.addConstraint(Sketcher.Constraint("DistanceX", 2, 1, 2, 2, Q("9.7 mm")))
sketch16.addConstraint(Sketcher.Constraint("DistanceY", 1, 1, 1, 2, Q("1.5 mm")))
sketch16.addConstraint(Sketcher.Constraint("DistanceY", 3, 1, 3, 2, Q("22.3 mm")))
sketch16.addConstraint(Sketcher.Constraint("DistanceX", -1, 1, 0, 2, Q("6 mm")))
sketch16.addConstraint(Sketcher.Constraint("DistanceY", 0, 2, -1, 1, Q("11.1767 mm")))
pad13 = doc.addObject("PartDesign::Pad", "Pad012")
body.addObject(pad13)
pad13.Profile = sketch16
pad13.Length = 8
pad13.Reversed = True

# Sketch on YZ plane
sketch17 = doc.addObject("Sketcher::SketchObject", "Sketch016")
body.addObject(sketch17)
sketch17.AttachmentSupport = (doc.YZ_Plane, [""])
sketch17.MapMode = "FlatFace"
sketch17.AttachmentOffset = App.Placement(App.Vector(0, 0, -14.2884), App.Rotation())
sketch17.addGeometry(Part.Circle(App.Vector(3, 1.5, 0), App.Vector(0, 0, 1), 1.5), False)
sketch17.addConstraint(Sketcher.Constraint("Diameter", 0, Q("3 mm")))
sketch17.addConstraint(Sketcher.Constraint("DistanceX", -1, 1, 0, 3, Q("3 mm")))
sketch17.addConstraint(Sketcher.Constraint("DistanceY", -1, 1, 0, 3, Q("1.4733 mm")))
pocket4 = doc.addObject("PartDesign::Pocket", "Pocket003")
body.addObject(pocket4)
pocket4.Profile = sketch17
pocket4.Length = 8
pocket4.Reversed = True

# Sketch on YZ plane
sketch18 = doc.addObject("Sketcher::SketchObject", "Sketch017")
body.addObject(sketch18)
sketch18.AttachmentSupport = (doc.YZ_Plane, [""])
sketch18.MapMode = "FlatFace"
sketch18.AttachmentOffset = App.Placement(App.Vector(0, 0, -14.2884), App.Rotation())
sketch18.addGeometry(Part.Circle(App.Vector(26.5, 1.5, 0), App.Vector(0, 0, 1), 1.5), False)
sketch18.addConstraint(Sketcher.Constraint("Diameter", 0, Q("3 mm")))
sketch18.addConstraint(Sketcher.Constraint("DistanceX", -1, 1, 0, 3, Q("26.5 mm")))
sketch18.addConstraint(Sketcher.Constraint("DistanceY", -1, 1, 0, 3, Q("1.4733 mm")))
pocket5 = doc.addObject("PartDesign::Pocket", "Pocket004")
body.addObject(pocket5)
pocket5.Profile = sketch18
pocket5.Length = 8
pocket5.Reversed = True

# Sketch on XZ plane
sketch19 = doc.addObject("Sketcher::SketchObject", "Sketch018")
body.addObject(sketch19)
sketch19.AttachmentSupport = (doc.XZ_Plane, [""])
sketch19.MapMode = "FlatFace"
sketch19.addGeometry(Part.Circle(App.Vector(-0.2, 15.3, 0), App.Vector(0, 0, 1), 1.5), False)
sketch19.addGeometry(Part.Circle(App.Vector(-0.2, -12.5, 0), App.Vector(0, 0, 1), 1.5), False)
sketch19.addConstraint(Sketcher.Constraint("Equal", 0, 1))
sketch19.addConstraint(Sketcher.Constraint("Vertical", 0, 3, 1, 3))
sketch19.addConstraint(Sketcher.Constraint("Diameter", 0, Q("3 mm")))
sketch19.addConstraint(Sketcher.Constraint("DistanceY", 1, 3, 0, 3, Q("27.8 mm")))
sketch19.addConstraint(Sketcher.Constraint("DistanceX", 0, 3, -1, 1, Q("0.1884 mm")))
sketch19.addConstraint(Sketcher.Constraint("DistanceY", -1, 1, 0, 3, Q("15.2733 mm")))
pocket6 = doc.addObject("PartDesign::Pocket", "Pocket005")
body.addObject(pocket6)
pocket6.Profile = sketch19
pocket6.Length = 15

doc.recompute()
